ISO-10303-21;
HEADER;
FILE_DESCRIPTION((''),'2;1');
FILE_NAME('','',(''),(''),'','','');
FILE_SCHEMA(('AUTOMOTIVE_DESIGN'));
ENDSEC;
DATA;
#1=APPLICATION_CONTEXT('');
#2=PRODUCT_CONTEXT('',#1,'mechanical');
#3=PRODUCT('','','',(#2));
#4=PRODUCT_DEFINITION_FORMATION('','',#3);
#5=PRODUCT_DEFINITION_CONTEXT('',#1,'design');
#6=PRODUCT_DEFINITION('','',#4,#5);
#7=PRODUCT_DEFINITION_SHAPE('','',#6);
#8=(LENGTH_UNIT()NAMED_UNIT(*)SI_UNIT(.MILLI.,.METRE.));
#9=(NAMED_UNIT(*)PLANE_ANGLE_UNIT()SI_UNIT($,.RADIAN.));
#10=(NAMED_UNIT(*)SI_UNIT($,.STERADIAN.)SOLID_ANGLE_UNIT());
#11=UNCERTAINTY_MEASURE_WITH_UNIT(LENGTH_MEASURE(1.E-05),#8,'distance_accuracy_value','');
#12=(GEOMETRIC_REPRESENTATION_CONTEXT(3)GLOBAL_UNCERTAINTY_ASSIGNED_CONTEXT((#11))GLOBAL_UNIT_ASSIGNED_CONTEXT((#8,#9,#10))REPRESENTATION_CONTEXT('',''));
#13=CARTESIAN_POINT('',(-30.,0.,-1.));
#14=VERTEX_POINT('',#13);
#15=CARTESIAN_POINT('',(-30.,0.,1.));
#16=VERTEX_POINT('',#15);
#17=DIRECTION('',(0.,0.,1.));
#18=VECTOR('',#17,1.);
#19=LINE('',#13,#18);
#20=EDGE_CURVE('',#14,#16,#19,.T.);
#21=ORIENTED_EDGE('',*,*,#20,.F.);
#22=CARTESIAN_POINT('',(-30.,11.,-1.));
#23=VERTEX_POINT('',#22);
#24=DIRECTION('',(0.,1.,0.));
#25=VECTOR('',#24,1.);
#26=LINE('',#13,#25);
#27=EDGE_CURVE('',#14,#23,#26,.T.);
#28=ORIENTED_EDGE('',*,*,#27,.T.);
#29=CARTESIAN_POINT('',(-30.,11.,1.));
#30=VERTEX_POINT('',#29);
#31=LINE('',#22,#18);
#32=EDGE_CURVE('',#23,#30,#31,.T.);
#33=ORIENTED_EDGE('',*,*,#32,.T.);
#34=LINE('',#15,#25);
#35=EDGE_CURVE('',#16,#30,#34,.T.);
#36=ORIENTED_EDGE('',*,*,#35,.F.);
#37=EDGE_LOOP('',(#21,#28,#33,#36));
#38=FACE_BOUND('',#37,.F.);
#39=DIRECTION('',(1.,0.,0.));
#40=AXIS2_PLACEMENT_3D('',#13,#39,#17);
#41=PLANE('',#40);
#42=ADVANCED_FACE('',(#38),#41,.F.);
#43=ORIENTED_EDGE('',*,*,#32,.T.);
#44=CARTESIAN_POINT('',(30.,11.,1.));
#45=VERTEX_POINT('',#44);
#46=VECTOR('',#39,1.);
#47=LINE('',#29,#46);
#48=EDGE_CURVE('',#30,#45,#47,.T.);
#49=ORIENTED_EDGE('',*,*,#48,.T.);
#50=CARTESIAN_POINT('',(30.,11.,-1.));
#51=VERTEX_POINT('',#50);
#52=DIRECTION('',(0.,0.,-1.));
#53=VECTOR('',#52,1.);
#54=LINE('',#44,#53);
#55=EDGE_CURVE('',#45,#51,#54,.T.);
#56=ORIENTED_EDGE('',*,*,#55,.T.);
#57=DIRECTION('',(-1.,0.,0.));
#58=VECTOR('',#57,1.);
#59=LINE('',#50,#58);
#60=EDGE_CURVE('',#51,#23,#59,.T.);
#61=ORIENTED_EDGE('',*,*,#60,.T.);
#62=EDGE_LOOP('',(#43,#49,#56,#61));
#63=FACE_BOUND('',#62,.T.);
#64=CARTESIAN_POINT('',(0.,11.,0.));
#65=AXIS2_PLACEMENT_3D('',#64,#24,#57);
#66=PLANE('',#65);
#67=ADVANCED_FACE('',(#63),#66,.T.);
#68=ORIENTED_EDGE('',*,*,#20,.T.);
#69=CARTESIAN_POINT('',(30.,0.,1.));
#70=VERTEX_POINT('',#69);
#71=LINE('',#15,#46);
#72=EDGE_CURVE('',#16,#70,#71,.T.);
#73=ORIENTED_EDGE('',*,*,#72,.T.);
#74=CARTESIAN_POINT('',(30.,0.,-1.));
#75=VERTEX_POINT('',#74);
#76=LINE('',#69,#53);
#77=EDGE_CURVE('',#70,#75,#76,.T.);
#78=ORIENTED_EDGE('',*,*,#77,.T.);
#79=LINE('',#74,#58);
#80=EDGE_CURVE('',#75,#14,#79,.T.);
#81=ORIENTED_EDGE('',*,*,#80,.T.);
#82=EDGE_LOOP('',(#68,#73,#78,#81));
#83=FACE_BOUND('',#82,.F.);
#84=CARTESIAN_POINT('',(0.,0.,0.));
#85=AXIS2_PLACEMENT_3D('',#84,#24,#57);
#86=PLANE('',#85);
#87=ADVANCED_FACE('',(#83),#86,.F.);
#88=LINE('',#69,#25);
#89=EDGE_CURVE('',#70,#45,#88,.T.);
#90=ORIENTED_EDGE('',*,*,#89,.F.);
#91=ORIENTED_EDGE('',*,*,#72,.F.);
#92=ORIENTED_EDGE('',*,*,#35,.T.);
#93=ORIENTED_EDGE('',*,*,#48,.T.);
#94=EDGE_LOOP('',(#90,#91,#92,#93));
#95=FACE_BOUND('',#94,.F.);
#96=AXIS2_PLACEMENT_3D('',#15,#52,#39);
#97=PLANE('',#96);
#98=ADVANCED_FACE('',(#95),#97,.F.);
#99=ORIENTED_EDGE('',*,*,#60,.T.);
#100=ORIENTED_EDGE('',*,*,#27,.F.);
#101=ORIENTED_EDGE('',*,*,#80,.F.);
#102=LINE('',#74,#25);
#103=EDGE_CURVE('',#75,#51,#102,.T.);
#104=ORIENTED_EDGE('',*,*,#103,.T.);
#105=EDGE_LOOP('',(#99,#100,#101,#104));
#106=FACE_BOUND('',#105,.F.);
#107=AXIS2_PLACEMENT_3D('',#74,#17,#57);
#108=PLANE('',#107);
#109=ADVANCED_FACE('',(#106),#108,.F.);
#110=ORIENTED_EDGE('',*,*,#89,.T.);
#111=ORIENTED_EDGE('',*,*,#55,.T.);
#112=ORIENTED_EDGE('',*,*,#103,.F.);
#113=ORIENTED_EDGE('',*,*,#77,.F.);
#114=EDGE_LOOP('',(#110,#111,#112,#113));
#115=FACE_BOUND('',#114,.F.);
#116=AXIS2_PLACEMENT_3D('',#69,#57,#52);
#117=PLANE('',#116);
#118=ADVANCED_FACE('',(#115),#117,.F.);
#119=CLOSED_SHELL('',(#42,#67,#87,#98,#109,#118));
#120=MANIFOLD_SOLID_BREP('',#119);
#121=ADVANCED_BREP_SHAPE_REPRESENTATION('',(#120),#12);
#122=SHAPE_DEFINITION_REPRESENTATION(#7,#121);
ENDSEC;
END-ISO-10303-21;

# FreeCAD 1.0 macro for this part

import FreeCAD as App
import Part
import Sketcher
from FreeCAD import Vector
Q = App.Units.Quantity

doc = App.newDocument("Part")
body = doc.addObject("PartDesign::Body", "Body")

# Sketch on XZ plane
sketch1 = doc.addObject("Sketcher::SketchObject", "Sketch")
body.addObject(sketch1)
sketch1.AttachmentSupport = (doc.XZ_Plane, [""])
sketch1.MapMode = "FlatFace"
sketch1.addGeometry([
    Part.LineSegment(Vector(30, 1, 0), Vector(30, -1, 0)),
    Part.LineSegment(Vector(30, -1, 0), Vector(-30, -1, 0)),
    Part.LineSegment(Vector(-30, -1, 0), Vector(-30, 1, 0)),
    Part.LineSegment(Vector(-30, 1, 0), Vector(30, 1, 0)),
], False)
sketch1.addConstraint([
    Sketcher.Constraint("Coincident", 0, 2, 1, 1),
    Sketcher.Constraint("Coincident", 1, 2, 2, 1),
    Sketcher.Constraint("Coincident", 2, 2, 3, 1),
    Sketcher.Constraint("Coincident", 3, 2, 0, 1),
    Sketcher.Constraint("Vertical", 0),
    Sketcher.Constraint("Horizontal", 1),
    Sketcher.Constraint("Vertical", 2),
    Sketcher.Constraint("Horizontal", 3),
    Sketcher.Constraint("Symmetric", 0, 2, 2, 2, -1, 1),
    Sketcher.Constraint("DistanceX", 1, 2, 1, 1, Q("60 mm")),
    Sketcher.Constraint("DistanceY", 0, 2, 0, 1, Q("2 mm")),
])
pad1 = doc.addObject("PartDesign::Pad", "Pad")
body.addObject(pad1)
pad1.Profile = sketch1
pad1.Length = 11
pad1.Reversed = True

doc.recompute()
